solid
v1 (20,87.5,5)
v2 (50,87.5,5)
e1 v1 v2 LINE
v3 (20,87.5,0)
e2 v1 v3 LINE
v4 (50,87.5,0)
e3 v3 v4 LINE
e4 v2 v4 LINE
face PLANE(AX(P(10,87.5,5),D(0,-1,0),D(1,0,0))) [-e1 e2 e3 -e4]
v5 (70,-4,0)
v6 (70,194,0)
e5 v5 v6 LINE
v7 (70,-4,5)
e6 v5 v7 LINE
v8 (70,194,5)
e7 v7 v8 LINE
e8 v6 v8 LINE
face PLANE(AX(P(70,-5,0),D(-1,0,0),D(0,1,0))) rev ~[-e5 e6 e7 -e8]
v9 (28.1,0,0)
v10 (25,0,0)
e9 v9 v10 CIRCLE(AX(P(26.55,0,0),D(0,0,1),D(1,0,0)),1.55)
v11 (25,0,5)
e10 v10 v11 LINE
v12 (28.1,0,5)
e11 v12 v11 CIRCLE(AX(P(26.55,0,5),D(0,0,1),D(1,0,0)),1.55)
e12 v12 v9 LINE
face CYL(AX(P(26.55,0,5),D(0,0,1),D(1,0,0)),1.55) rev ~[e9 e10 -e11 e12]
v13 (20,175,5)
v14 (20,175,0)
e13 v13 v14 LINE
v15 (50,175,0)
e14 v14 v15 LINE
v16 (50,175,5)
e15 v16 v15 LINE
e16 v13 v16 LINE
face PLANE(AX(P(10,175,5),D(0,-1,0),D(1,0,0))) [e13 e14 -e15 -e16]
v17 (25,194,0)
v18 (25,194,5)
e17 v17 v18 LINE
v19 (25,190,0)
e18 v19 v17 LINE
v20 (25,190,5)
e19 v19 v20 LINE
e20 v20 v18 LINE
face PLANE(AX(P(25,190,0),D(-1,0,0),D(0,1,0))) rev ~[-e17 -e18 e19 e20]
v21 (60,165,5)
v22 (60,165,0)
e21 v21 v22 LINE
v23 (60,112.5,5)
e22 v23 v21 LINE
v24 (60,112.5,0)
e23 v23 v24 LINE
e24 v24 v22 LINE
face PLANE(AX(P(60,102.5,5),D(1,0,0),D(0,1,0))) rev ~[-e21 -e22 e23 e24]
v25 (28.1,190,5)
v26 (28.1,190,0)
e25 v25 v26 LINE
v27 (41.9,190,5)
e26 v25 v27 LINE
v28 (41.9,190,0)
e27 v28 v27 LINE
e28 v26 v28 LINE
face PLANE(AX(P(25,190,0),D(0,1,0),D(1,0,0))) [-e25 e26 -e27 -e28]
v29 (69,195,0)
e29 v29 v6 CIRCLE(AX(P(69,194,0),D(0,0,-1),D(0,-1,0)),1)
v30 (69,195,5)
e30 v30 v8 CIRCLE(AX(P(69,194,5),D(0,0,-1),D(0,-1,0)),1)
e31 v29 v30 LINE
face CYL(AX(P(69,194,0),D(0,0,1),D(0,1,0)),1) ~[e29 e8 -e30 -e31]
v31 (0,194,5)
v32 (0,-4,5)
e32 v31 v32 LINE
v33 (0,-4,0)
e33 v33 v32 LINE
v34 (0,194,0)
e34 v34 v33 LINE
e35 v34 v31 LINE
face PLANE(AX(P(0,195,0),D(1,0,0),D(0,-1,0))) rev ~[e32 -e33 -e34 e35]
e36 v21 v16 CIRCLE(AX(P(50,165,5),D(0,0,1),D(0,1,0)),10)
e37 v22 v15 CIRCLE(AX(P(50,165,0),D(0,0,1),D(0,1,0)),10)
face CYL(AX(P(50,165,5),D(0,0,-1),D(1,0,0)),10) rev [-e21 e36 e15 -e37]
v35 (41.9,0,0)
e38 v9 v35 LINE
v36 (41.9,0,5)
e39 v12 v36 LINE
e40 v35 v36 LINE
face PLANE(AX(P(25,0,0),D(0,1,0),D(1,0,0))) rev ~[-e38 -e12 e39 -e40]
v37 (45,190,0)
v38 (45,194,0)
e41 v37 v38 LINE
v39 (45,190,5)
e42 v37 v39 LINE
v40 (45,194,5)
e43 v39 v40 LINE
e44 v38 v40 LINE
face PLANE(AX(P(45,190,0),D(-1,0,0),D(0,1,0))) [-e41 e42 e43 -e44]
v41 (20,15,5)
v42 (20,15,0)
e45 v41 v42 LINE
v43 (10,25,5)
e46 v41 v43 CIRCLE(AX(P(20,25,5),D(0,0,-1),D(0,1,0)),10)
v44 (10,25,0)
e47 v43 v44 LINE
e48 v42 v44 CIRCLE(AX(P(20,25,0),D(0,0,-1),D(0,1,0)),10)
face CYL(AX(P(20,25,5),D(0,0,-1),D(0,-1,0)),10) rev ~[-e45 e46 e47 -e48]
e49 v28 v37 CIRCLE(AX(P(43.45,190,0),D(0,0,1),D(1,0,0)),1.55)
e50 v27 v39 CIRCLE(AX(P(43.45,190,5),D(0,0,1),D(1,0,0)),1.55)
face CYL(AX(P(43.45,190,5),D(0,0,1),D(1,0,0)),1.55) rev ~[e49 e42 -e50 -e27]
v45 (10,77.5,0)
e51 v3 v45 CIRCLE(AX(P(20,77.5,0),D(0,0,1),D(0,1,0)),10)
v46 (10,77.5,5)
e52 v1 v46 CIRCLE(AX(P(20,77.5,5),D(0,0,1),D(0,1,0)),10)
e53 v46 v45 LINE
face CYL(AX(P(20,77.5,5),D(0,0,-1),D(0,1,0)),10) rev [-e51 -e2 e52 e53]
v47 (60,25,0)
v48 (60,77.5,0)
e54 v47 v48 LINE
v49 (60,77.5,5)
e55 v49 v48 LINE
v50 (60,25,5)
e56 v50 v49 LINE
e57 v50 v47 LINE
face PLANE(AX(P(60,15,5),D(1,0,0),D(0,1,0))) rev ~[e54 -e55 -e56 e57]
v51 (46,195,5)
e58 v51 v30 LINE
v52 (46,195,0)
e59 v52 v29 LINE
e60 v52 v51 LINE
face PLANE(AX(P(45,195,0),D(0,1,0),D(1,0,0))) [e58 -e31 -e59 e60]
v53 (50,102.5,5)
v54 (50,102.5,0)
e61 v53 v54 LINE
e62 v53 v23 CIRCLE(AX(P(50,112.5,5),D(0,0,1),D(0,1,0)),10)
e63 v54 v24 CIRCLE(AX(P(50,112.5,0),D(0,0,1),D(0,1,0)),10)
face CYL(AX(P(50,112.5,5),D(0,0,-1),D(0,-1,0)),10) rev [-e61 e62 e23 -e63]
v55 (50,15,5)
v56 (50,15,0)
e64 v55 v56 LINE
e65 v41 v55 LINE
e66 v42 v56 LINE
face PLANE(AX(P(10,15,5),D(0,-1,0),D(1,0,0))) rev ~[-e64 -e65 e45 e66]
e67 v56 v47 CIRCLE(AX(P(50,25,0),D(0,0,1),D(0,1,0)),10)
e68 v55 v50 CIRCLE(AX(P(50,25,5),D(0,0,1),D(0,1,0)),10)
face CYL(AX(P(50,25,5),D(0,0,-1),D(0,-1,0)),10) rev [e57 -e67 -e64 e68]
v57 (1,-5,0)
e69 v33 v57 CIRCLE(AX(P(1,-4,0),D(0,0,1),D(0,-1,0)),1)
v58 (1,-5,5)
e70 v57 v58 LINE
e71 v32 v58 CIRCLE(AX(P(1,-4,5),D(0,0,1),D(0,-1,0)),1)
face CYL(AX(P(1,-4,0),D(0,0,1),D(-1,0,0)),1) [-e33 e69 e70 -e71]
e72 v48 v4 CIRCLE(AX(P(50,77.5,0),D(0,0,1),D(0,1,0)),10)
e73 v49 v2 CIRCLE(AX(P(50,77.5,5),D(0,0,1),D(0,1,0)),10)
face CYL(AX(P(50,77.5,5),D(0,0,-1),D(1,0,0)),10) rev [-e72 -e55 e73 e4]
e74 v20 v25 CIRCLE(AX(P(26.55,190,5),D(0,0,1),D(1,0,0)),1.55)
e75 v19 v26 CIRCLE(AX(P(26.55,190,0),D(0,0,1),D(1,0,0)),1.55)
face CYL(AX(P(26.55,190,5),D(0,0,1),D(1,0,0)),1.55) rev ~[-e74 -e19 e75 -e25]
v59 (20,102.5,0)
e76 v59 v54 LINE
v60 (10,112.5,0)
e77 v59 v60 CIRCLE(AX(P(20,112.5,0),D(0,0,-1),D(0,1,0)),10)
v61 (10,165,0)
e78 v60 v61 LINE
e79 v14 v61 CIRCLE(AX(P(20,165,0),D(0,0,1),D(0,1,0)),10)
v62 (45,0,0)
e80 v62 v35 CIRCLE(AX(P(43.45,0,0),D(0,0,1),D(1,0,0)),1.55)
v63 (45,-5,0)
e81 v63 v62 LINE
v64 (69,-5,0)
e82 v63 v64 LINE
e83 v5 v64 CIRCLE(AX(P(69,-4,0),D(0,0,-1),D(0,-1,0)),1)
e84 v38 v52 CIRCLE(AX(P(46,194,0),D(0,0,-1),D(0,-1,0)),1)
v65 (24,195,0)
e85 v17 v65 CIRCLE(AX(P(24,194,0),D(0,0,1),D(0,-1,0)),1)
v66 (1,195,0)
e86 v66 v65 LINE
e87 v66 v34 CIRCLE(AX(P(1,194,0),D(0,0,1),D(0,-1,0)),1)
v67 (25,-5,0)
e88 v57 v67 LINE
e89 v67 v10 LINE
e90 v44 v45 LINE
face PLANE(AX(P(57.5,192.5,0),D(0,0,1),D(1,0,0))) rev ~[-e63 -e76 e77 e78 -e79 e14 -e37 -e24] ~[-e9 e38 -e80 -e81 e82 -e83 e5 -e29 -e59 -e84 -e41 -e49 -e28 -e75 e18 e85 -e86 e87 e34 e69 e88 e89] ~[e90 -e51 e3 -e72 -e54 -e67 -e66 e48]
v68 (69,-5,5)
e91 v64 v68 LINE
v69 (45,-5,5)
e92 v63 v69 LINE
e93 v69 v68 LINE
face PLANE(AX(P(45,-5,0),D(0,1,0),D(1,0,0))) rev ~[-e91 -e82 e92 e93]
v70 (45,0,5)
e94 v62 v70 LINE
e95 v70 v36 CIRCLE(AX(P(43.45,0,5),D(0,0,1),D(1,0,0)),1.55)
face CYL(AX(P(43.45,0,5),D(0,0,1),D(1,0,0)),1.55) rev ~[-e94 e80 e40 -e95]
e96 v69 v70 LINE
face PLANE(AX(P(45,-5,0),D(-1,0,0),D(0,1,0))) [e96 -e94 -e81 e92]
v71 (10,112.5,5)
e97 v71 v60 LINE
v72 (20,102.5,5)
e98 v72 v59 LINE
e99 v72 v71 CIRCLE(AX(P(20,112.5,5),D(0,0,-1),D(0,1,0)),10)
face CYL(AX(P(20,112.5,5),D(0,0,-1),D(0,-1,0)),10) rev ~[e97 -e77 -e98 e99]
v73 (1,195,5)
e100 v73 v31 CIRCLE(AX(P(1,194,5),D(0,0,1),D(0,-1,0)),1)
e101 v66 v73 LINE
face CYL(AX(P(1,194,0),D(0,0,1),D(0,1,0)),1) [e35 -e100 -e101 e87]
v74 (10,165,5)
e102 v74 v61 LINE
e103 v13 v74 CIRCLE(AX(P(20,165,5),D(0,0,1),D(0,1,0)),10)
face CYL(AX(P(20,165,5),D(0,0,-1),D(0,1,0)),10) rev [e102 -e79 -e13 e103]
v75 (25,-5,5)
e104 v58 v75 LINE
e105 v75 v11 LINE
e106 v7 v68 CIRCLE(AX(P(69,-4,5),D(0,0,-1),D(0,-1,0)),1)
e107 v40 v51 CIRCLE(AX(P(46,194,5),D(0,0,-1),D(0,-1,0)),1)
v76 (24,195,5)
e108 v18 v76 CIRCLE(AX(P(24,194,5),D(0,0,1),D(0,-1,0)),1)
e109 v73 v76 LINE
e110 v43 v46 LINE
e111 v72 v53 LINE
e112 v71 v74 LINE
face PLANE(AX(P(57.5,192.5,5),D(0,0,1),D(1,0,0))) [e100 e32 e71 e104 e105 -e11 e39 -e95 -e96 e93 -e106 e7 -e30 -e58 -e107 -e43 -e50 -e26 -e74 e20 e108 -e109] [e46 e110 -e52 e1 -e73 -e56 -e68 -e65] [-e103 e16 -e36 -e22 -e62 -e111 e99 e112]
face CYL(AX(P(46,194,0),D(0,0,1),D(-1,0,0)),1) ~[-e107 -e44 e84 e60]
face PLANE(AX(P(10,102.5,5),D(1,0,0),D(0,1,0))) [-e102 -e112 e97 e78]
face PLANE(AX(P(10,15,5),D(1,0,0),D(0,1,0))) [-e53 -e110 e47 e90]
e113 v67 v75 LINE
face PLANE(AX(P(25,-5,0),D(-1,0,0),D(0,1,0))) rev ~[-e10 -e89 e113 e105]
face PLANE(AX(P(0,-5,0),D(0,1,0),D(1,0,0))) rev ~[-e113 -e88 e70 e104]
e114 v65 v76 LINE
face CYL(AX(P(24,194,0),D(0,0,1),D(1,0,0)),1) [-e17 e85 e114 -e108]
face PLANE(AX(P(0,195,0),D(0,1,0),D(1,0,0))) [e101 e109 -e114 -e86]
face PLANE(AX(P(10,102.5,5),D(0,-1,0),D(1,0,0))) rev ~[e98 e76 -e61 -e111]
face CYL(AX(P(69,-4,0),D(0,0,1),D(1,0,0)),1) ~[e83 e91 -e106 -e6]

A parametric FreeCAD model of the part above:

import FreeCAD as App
import Part
import Sketcher

V = App.Vector


def edges_at(feature, points):
    """Names of the edges that pass closest to the given points."""
    edges = feature.Shape.Edges
    near = lambda p: min(range(len(edges)), key=lambda i: edges[i].distToShape(Part.Vertex(*p))[0])
    return sorted({f"Edge{near(p) + 1}" for p in points})


def add_polygon(sketch, points):
    """Adds a closed chain of lines whose ends are joined by coincident constraints."""
    first, n = sketch.GeometryCount, len(points)
    for a, b in zip(points, points[1:] + points[:1]):
        sketch.addGeometry(Part.LineSegment(App.Vector(*a, 0), App.Vector(*b, 0)), False)
    for i in range(n):
        sketch.addConstraint(Sketcher.Constraint("Coincident", first + i, 2, first + (i + 1) % n, 1))

doc = App.newDocument("Part")
params = doc.addObject("Spreadsheet::Sheet", "Params")
for row, (alias, value) in enumerate([
    ("sketch1_width", "20 mm"),
    ("sketch1_width2", "25 mm"),
    ("sketch1_height", "5 mm"),
    ("sketch1_height2", "200 mm"),
    ("pad1_length", "5 mm"),
    ("sketch2_diameter", "3.1 mm"),
    ("pocket1_length", "5 mm"),
    ("sketch3_width", "50 mm"),
    ("sketch3_height", "72.5 mm"),
    ("pocket2_length", "5 mm"),
    ("fillet_radius", "10 mm"),
    ("fillet2_radius", "1 mm"),
], start=1):
    params.set(f"A{row}", alias)
    params.set(f"B{row}", "=" + value)
    params.setAlias(f"B{row}", alias)

body = doc.addObject("PartDesign::Body", "Body")

# Sketch on XY plane
sketch1 = body.newObject("Sketcher::SketchObject", "Sketch")
sketch1.AttachmentSupport = (doc.getObject("XY_Plane"), [""])
sketch1.MapMode = "FlatFace"
add_polygon(sketch1, [(45, 195), (45, 190), (25, 190), (25, 195), (0, 195), (0, -5), (25, -5), (25, 0), (45, 0), (45, -5), (70, -5), (70, 195)])  # lines 0-11
sketch1.addConstraint([
    Sketcher.Constraint("Vertical", 0),
    Sketcher.Constraint("Horizontal", 1),
    Sketcher.Constraint("Vertical", 2),
    Sketcher.Constraint("Horizontal", 3),
    Sketcher.Constraint("Vertical", 4),
    Sketcher.Constraint("Horizontal", 5),
    Sketcher.Constraint("Vertical", 6),
    Sketcher.Constraint("Horizontal", 7),
    Sketcher.Constraint("Vertical", 8),
    Sketcher.Constraint("Horizontal", 9),
    Sketcher.Constraint("Vertical", 10),
    Sketcher.Constraint("Horizontal", 11),
    Sketcher.Constraint("PointOnObject", 3, 2, -2),
    Sketcher.Constraint("PointOnObject", 6, 2, -1),
    Sketcher.Constraint("Horizontal", 5, 2, 8, 2),
    Sketcher.Constraint("Horizontal", 3, 2, 10, 2),
    Sketcher.Constraint("Vertical", 2, 2, 5, 2),
    Sketcher.Constraint("Vertical", 0, 2, 7, 2),
    Sketcher.Constraint("Equal", 5, 9),
    Sketcher.Constraint("Equal", 2, 6),
    Sketcher.Constraint("DistanceX", 1, 2, 1, 1, 20.0),
    Sketcher.Constraint("DistanceX", 3, 2, 3, 1, 25.0),
    Sketcher.Constraint("DistanceY", 0, 2, 0, 1, 5.0),
    Sketcher.Constraint("DistanceY", 4, 2, 4, 1, 200.0),
])
sketch1.setExpression("Constraints[32]", "Params.sketch1_width")
sketch1.setExpression("Constraints[33]", "Params.sketch1_width2")
sketch1.setExpression("Constraints[34]", "Params.sketch1_height")
sketch1.setExpression("Constraints[35]", "Params.sketch1_height2")
pad1 = body.newObject("PartDesign::Pad", "Pad")
pad1.Profile = sketch1
pad1.setExpression("Length", "Params.pad1_length")

# Sketch on XY plane
sketch2 = body.newObject("Sketcher::SketchObject", "Sketch001")
sketch2.AttachmentSupport = (doc.getObject("XY_Plane"), [""])
sketch2.MapMode = "FlatFace"
sketch2.AttachmentOffset = App.Placement(V(0, 0, 5), App.Rotation())
sketch2.addGeometry([
    Part.Circle(V(43.45, 0, 0), V(0, 0, 1), 1.55),
    Part.Circle(V(26.55, 0, 0), V(0, 0, 1), 1.55),
    Part.Circle(V(43.45, 190, 0), V(0, 0, 1), 1.55),
    Part.Circle(V(26.55, 190, 0), V(0, 0, 1), 1.55),
], False)
sketch2.addConstraint([
    Sketcher.Constraint("Equal", 0, 1),
    Sketcher.Constraint("Equal", 1, 2),
    Sketcher.Constraint("Equal", 2, 3),
    Sketcher.Constraint("PointOnObject", 0, 3, -1),
    Sketcher.Constraint("PointOnObject", 1, 3, -1),
    Sketcher.Constraint("Horizontal", 2, 3, 3, 3),
    Sketcher.Constraint("Vertical", 0, 3, 2, 3),
    Sketcher.Constraint("Vertical", 1, 3, 3, 3),
    Sketcher.Constraint("Diameter", 0, 3.1),
    Sketcher.Constraint("DistanceY", -1, 1, 2, 3, 190.0),
    Sketcher.Constraint("DistanceX", 1, 3, 0, 3, 16.9),
    Sketcher.Constraint("DistanceX", -1, 1, 0, 3, 43.45),
])
sketch2.setExpression("Constraints[8]", "Params.sketch2_diameter")
pocket1 = body.newObject("PartDesign::Pocket", "Pocket")
pocket1.Profile = sketch2
pocket1.setExpression("Length", "Params.pocket1_length")

# Sketch on XY plane
sketch3 = body.newObject("Sketcher::SketchObject", "Sketch002")
sketch3.AttachmentSupport = (doc.getObject("XY_Plane"), [""])
sketch3.MapMode = "FlatFace"
sketch3.AttachmentOffset = App.Placement(V(0, 0, 5), App.Rotation())
add_polygon(sketch3, [(10, 87.5), (10, 15), (60, 15), (60, 87.5)])  # lines 0-3
add_polygon(sketch3, [(10, 175), (10, 102.5), (60, 102.5), (60, 175)])  # lines 4-7
sketch3.addConstraint([
    Sketcher.Constraint("Vertical", 0),
    Sketcher.Constraint("Horizontal", 1),
    Sketcher.Constraint("Vertical", 2),
    Sketcher.Constraint("Horizontal", 3),
    Sketcher.Constraint("Vertical", 4),
    Sketcher.Constraint("Horizontal", 5),
    Sketcher.Constraint("Vertical", 6),
    Sketcher.Constraint("Horizontal", 7),
    Sketcher.Constraint("Vertical", 3, 2, 4, 2),
    Sketcher.Constraint("Vertical", 2, 2, 5, 2),
    Sketcher.Constraint("Equal", 2, 4),
    Sketcher.Constraint("DistanceX", 1, 1, 1, 2, 50.0),
    Sketcher.Constraint("DistanceY", 0, 2, 0, 1, 72.5),
    Sketcher.Constraint("DistanceX", -1, 1, 0, 2, 10.0),
    Sketcher.Constraint("DistanceY", -1, 1, 0, 2, 15.0),
    Sketcher.Constraint("DistanceY", -1, 1, 6, 2, 175.0),
])
sketch3.setExpression("Constraints[19]", "Params.sketch3_width")
sketch3.setExpression("Constraints[20]", "Params.sketch3_height")
pocket2 = body.newObject("PartDesign::Pocket", "Pocket001")
pocket2.Profile = sketch3
pocket2.setExpression("Length", "Params.pocket2_length")
doc.recompute()

fillet = body.newObject("PartDesign::Fillet", "Fillet")
fillet.Base = (pocket2, edges_at(pocket2, [
    (10, 15, 2.5),
    (10, 87.5, 2.5),
    (60, 87.5, 2.5),
    (60, 15, 2.5),
    (10, 102.5, 2.5),
    (10, 175, 2.5),
    (60, 175, 2.5),
    (60, 102.5, 2.5),
]))
fillet.setExpression("Radius", "Params.fillet_radius")
doc.recompute()

fillet2 = body.newObject("PartDesign::Fillet", "Fillet001")
fillet2.Base = (fillet, edges_at(fillet, [
    (45, 195, 2.5),
    (70, 195, 2.5),
    (70, -5, 2.5),
    (0, -5, 2.5),
    (0, 195, 2.5),
    (25, 195, 2.5),
]))
fillet2.setExpression("Radius", "Params.fillet2_radius")

doc.recompute()
